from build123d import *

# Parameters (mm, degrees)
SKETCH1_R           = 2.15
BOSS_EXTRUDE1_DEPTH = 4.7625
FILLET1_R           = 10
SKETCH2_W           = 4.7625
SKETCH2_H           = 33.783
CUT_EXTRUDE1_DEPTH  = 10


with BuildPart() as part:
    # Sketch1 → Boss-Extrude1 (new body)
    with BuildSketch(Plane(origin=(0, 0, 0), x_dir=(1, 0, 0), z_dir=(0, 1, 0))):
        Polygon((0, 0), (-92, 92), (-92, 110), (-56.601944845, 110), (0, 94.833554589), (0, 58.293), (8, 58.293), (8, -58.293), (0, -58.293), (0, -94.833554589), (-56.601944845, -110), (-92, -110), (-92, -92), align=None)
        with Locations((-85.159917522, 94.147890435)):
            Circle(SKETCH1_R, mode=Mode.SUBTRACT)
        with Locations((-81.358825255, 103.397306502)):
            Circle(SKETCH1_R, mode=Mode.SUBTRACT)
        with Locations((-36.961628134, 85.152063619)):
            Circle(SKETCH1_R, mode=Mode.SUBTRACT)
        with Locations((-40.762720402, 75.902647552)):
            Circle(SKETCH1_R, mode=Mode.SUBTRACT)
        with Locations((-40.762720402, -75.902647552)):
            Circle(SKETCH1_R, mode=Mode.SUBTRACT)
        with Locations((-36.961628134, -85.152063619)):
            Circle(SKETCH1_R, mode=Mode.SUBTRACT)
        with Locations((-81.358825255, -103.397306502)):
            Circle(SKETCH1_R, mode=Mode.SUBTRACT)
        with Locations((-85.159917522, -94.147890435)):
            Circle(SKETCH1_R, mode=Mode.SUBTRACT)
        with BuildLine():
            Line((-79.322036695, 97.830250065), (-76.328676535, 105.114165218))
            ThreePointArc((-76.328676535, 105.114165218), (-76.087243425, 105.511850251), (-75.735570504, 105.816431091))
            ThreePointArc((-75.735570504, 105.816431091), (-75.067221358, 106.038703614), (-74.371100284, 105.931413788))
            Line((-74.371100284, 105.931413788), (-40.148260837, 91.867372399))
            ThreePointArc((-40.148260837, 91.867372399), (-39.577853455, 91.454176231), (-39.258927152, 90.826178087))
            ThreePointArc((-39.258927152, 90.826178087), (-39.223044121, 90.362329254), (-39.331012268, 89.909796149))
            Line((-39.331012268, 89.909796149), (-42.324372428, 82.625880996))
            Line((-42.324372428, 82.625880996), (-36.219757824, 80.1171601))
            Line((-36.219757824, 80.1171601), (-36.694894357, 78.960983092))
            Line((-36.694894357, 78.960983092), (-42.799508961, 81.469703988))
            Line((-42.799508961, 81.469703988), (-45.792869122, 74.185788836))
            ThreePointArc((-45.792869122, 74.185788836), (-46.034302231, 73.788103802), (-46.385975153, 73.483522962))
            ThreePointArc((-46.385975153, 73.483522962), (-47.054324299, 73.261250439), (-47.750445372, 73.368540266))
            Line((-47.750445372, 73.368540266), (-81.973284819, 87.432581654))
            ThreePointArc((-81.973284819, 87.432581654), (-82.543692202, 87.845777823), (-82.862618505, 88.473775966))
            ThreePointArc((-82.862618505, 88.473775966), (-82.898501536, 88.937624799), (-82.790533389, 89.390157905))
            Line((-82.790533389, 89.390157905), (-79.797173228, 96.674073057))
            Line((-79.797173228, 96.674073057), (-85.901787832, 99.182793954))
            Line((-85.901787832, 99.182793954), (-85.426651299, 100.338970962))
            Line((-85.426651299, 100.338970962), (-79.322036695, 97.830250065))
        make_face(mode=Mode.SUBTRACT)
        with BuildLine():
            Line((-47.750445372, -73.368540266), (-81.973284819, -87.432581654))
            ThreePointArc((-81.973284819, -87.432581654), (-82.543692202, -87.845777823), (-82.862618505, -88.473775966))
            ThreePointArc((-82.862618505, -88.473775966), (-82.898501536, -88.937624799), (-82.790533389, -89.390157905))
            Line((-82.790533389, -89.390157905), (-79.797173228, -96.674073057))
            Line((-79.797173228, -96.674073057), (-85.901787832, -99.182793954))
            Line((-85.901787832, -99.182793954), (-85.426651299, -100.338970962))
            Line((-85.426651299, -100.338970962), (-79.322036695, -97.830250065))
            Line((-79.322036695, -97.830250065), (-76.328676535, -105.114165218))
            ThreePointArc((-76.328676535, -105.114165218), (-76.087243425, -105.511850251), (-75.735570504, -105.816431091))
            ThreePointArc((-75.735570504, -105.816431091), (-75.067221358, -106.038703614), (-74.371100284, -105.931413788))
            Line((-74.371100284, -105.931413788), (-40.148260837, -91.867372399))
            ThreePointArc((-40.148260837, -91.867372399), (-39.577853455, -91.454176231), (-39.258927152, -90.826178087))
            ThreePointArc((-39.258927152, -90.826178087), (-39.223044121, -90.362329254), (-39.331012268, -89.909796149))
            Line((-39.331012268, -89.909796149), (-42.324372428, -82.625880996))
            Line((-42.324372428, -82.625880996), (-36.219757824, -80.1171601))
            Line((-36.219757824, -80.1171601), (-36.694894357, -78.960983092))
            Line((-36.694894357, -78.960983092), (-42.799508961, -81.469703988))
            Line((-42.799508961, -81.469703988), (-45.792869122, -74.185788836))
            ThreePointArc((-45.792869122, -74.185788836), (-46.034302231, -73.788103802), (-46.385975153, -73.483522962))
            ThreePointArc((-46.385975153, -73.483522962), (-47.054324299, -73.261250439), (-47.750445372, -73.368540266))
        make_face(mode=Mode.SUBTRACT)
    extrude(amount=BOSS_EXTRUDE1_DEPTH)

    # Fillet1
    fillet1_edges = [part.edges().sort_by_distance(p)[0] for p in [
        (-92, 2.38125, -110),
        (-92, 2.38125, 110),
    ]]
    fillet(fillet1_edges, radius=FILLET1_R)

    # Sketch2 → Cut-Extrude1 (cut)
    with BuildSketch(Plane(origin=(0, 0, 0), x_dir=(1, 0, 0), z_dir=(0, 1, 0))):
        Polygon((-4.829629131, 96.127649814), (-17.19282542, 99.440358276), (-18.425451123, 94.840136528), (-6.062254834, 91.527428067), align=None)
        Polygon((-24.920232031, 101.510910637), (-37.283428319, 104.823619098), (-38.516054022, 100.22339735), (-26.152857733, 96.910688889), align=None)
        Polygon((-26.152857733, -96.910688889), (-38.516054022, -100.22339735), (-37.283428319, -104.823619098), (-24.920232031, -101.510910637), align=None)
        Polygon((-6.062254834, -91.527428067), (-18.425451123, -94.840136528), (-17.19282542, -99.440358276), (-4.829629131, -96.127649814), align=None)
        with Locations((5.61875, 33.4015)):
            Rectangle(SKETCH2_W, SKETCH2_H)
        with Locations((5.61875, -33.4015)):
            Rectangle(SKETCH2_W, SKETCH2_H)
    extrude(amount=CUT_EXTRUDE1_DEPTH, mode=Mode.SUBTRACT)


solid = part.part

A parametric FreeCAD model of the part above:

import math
import FreeCAD as App
import Part
import Sketcher
from FreeCAD import Vector
Q = App.Units.Quantity


def edges_at(feature, points):
    """Names of the edges that pass closest to the given points."""
    edges = feature.Shape.Edges
    near = lambda p: min(range(len(edges)), key=lambda i: edges[i].distToShape(Part.Vertex(*p))[0])
    return sorted({f"Edge{near(p) + 1}" for p in points})

doc = App.newDocument("Part")
body = doc.addObject("PartDesign::Body", "Body")

# Sketch on XZ plane
sketch1 = doc.addObject("Sketcher::SketchObject", "Sketch")
body.addObject(sketch1)
sketch1.AttachmentSupport = (doc.XZ_Plane, [""])
sketch1.MapMode = "FlatFace"
sketch1.addGeometry(Part.LineSegment(Vector(-92, -92, 0), Vector(0, 0, 0)), False)
sketch1.addGeometry(Part.LineSegment(Vector(0, 0, 0), Vector(-92, 92, 0)), False)
sketch1.addGeometry(Part.LineSegment(Vector(-92, 92, 0), Vector(-92, 110, 0)), False)
sketch1.addGeometry(Part.LineSegment(Vector(-92, 110, 0), Vector(-56.601945, 110, 0)), False)
sketch1.addGeometry(Part.LineSegment(Vector(-56.601945, 110, 0), Vector(0, 94.833555, 0)), False)
sketch1.addGeometry(Part.LineSegment(Vector(0, 94.833555, 0), Vector(0, 58.293, 0)), False)
sketch1.addGeometry(Part.LineSegment(Vector(0, 58.293, 0), Vector(8, 58.293, 0)), False)
sketch1.addGeometry(Part.LineSegment(Vector(8, 58.293, 0), Vector(8, -58.293, 0)), False)
sketch1.addGeometry(Part.LineSegment(Vector(8, -58.293, 0), Vector(0, -58.293, 0)), False)
sketch1.addGeometry(Part.LineSegment(Vector(0, -58.293, 0), Vector(0, -94.833555, 0)), False)
sketch1.addGeometry(Part.LineSegment(Vector(0, -94.833555, 0), Vector(-56.601945, -110, 0)), False)
sketch1.addGeometry(Part.LineSegment(Vector(-56.601945, -110, 0), Vector(-92, -110, 0)), False)
sketch1.addGeometry(Part.LineSegment(Vector(-92, -110, 0), Vector(-92, -92, 0)), False)
sketch1.addGeometry(Part.Circle(Vector(-36.961628, 85.152064, 0), Vector(0, 0, 1), 2.15), False)
sketch1.addGeometry(Part.Circle(Vector(-40.76272, 75.902648, 0), Vector(0, 0, 1), 2.15), False)
sketch1.addGeometry(Part.ArcOfCircle(Part.Circle(Vector(-47.180282, 74.755953, 0), Vector(0, 0, 1), 1.5), math.radians(-112.340449), math.radians(-58.025783)), False)
sketch1.addGeometry(Part.ArcOfCircle(Part.Circle(Vector(-47.180282, 74.755953, 0), Vector(0, 0, 1), 1.5), math.radians(-58.025783), math.radians(-22.340448)), False)
sketch1.addGeometry(Part.LineSegment(Vector(-45.792869, 74.185789, 0), Vector(-42.799509, 81.469704, 0)), False)
sketch1.addGeometry(Part.LineSegment(Vector(-42.799509, 81.469704, 0), Vector(-36.694894, 78.960983, 0)), False)
sketch1.addGeometry(Part.LineSegment(Vector(-36.694894, 78.960983, 0), Vector(-36.219758, 80.11716, 0)), False)
sketch1.addGeometry(Part.LineSegment(Vector(-36.219758, 80.11716, 0), Vector(-42.324372, 82.625881, 0)), False)
sketch1.addGeometry(Part.LineSegment(Vector(-42.324372, 82.625881, 0), Vector(-39.331012, 89.909796, 0)), False)
sketch1.addGeometry(Part.ArcOfCircle(Part.Circle(Vector(-40.718425, 90.47996, 0), Vector(0, 0, 1), 1.5), math.radians(-22.340449), math.radians(13.344886)), False)
sketch1.addGeometry(Part.ArcOfCircle(Part.Circle(Vector(-40.718425, 90.47996, 0), Vector(0, 0, 1), 1.5), math.radians(13.344886), math.radians(67.659551)), False)
sketch1.addGeometry(Part.LineSegment(Vector(-40.148261, 91.867372, 0), Vector(-74.3711, 105.931414, 0)), False)
sketch1.addGeometry(Part.ArcOfCircle(Part.Circle(Vector(-74.941264, 104.544001, 0), Vector(0, 0, 1), 1.5), math.radians(67.659551), math.radians(121.974217)), False)
sketch1.addGeometry(Part.ArcOfCircle(Part.Circle(Vector(-74.941264, 104.544001, 0), Vector(0, 0, 1), 1.5), math.radians(121.974217), math.radians(157.659551)), False)
sketch1.addGeometry(Part.LineSegment(Vector(-76.328677, 105.114165, 0), Vector(-79.322037, 97.83025, 0)), False)
sketch1.addGeometry(Part.LineSegment(Vector(-79.322037, 97.83025, 0), Vector(-85.426651, 100.338971, 0)), False)
sketch1.addGeometry(Part.LineSegment(Vector(-85.426651, 100.338971, 0), Vector(-85.901788, 99.182794, 0)), False)
sketch1.addGeometry(Part.LineSegment(Vector(-85.901788, 99.182794, 0), Vector(-79.797173, 96.674073, 0)), False)
sketch1.addGeometry(Part.LineSegment(Vector(-79.797173, 96.674073, 0), Vector(-82.790533, 89.390158, 0)), False)
sketch1.addGeometry(Part.ArcOfCircle(Part.Circle(Vector(-81.403121, 88.819994, 0), Vector(0, 0, 1), 1.5), math.radians(157.659551), math.radians(193.344886)), False)
sketch1.addGeometry(Part.ArcOfCircle(Part.Circle(Vector(-81.403121, 88.819994, 0), Vector(0, 0, 1), 1.5), math.radians(-166.655114), math.radians(-112.340449)), False)
sketch1.addGeometry(Part.LineSegment(Vector(-81.973285, 87.432582, 0), Vector(-47.750445, 73.36854, 0)), False)
sketch1.addGeometry(Part.Circle(Vector(-81.358825, 103.397307, 0), Vector(0, 0, 1), 2.15), False)
sketch1.addGeometry(Part.Circle(Vector(-85.159918, 94.14789, 0), Vector(0, 0, 1), 2.15), False)
sketch1.addGeometry(Part.Circle(Vector(-40.76272, -75.902648, 0), Vector(0, 0, 1), 2.15), False)
sketch1.addGeometry(Part.Circle(Vector(-36.961628, -85.152064, 0), Vector(0, 0, 1), 2.15), False)
sketch1.addGeometry(Part.LineSegment(Vector(-79.322037, -97.83025, 0), Vector(-76.328677, -105.114165, 0)), False)
sketch1.addGeometry(Part.ArcOfCircle(Part.Circle(Vector(-74.941264, -104.544001, 0), Vector(0, 0, 1), 1.5), math.radians(-157.659551), math.radians(-121.974217)), False)
sketch1.addGeometry(Part.ArcOfCircle(Part.Circle(Vector(-74.941264, -104.544001, 0), Vector(0, 0, 1), 1.5), math.radians(-121.974217), math.radians(-67.659551)), False)
sketch1.addGeometry(Part.LineSegment(Vector(-74.3711, -105.931414, 0), Vector(-40.148261, -91.867372, 0)), False)
sketch1.addGeometry(Part.ArcOfCircle(Part.Circle(Vector(-40.718425, -90.47996, 0), Vector(0, 0, 1), 1.5), math.radians(-67.659551), math.radians(-13.344886)), False)
sketch1.addGeometry(Part.ArcOfCircle(Part.Circle(Vector(-40.718425, -90.47996, 0), Vector(0, 0, 1), 1.5), math.radians(-13.344886), math.radians(22.340449)), False)
sketch1.addGeometry(Part.LineSegment(Vector(-39.331012, -89.909796, 0), Vector(-42.324372, -82.625881, 0)), False)
sketch1.addGeometry(Part.LineSegment(Vector(-42.324372, -82.625881, 0), Vector(-36.219758, -80.11716, 0)), False)
sketch1.addGeometry(Part.LineSegment(Vector(-36.219758, -80.11716, 0), Vector(-36.694894, -78.960983, 0)), False)
sketch1.addGeometry(Part.LineSegment(Vector(-36.694894, -78.960983, 0), Vector(-42.799509, -81.469704, 0)), False)
sketch1.addGeometry(Part.LineSegment(Vector(-42.799509, -81.469704, 0), Vector(-45.792869, -74.185789, 0)), False)
sketch1.addGeometry(Part.ArcOfCircle(Part.Circle(Vector(-47.180282, -74.755953, 0), Vector(0, 0, 1), 1.5), math.radians(22.340448), math.radians(58.025783)), False)
sketch1.addGeometry(Part.ArcOfCircle(Part.Circle(Vector(-47.180282, -74.755953, 0), Vector(0, 0, 1), 1.5), math.radians(58.025783), math.radians(112.340449)), False)
sketch1.addGeometry(Part.LineSegment(Vector(-47.750445, -73.36854, 0), Vector(-81.973285, -87.432582, 0)), False)
sketch1.addGeometry(Part.ArcOfCircle(Part.Circle(Vector(-81.403121, -88.819994, 0), Vector(0, 0, 1), 1.5), math.radians(112.340449), math.radians(166.655114)), False)
sketch1.addGeometry(Part.ArcOfCircle(Part.Circle(Vector(-81.403121, -88.819994, 0), Vector(0, 0, 1), 1.5), math.radians(166.655114), math.radians(202.340449)), False)
sketch1.addGeometry(Part.LineSegment(Vector(-82.790533, -89.390158, 0), Vector(-79.797173, -96.674073, 0)), False)
sketch1.addGeometry(Part.LineSegment(Vector(-79.797173, -96.674073, 0), Vector(-85.901788, -99.182794, 0)), False)
sketch1.addGeometry(Part.LineSegment(Vector(-85.901788, -99.182794, 0), Vector(-85.426651, -100.338971, 0)), False)
sketch1.addGeometry(Part.LineSegment(Vector(-85.426651, -100.338971, 0), Vector(-79.322037, -97.83025, 0)), False)
sketch1.addGeometry(Part.Circle(Vector(-81.358825, -103.397307, 0), Vector(0, 0, 1), 2.15), False)
sketch1.addGeometry(Part.Circle(Vector(-85.159918, -94.14789, 0), Vector(0, 0, 1), 2.15), False)
sketch1.addConstraint(Sketcher.Constraint("Coincident", 0, 2, 1, 1))
sketch1.addConstraint(Sketcher.Constraint("Coincident", 1, 2, 2, 1))
sketch1.addConstraint(Sketcher.Constraint("Coincident", 2, 2, 3, 1))
sketch1.addConstraint(Sketcher.Constraint("Coincident", 3, 2, 4, 1))
sketch1.addConstraint(Sketcher.Constraint("Coincident", 4, 2, 5, 1))
sketch1.addConstraint(Sketcher.Constraint("Coincident", 5, 2, 6, 1))
sketch1.addConstraint(Sketcher.Constraint("Coincident", 6, 2, 7, 1))
sketch1.addConstraint(Sketcher.Constraint("Coincident", 7, 2, 8, 1))
sketch1.addConstraint(Sketcher.Constraint("Coincident", 8, 2, 9, 1))
sketch1.addConstraint(Sketcher.Constraint("Coincident", 9, 2, 10, 1))
sketch1.addConstraint(Sketcher.Constraint("Coincident", 10, 2, 11, 1))
sketch1.addConstraint(Sketcher.Constraint("Coincident", 11, 2, 12, 1))
sketch1.addConstraint(Sketcher.Constraint("Coincident", 12, 2, 0, 1))
sketch1.addConstraint(Sketcher.Constraint("Tangent", 15, 2, 16, 1))
sketch1.addConstraint(Sketcher.Constraint("Tangent", 16, 2, 17, 1))
sketch1.addConstraint(Sketcher.Constraint("Coincident", 17, 2, 18, 1))
sketch1.addConstraint(Sketcher.Constraint("Coincident", 18, 2, 19, 1))
sketch1.addConstraint(Sketcher.Constraint("Coincident", 19, 2, 20, 1))
sketch1.addConstraint(Sketcher.Constraint("Coincident", 20, 2, 21, 1))
sketch1.addConstraint(Sketcher.Constraint("Tangent", 21, 2, 22, 1))
sketch1.addConstraint(Sketcher.Constraint("Tangent", 22, 2, 23, 1))
sketch1.addConstraint(Sketcher.Constraint("Tangent", 23, 2, 24, 1))
sketch1.addConstraint(Sketcher.Constraint("Tangent", 24, 2, 25, 1))
sketch1.addConstraint(Sketcher.Constraint("Tangent", 25, 2, 26, 1))
sketch1.addConstraint(Sketcher.Constraint("Tangent", 26, 2, 27, 1))
sketch1.addConstraint(Sketcher.Constraint("Coincident", 27, 2, 28, 1))
sketch1.addConstraint(Sketcher.Constraint("Coincident", 28, 2, 29, 1))
sketch1.addConstraint(Sketcher.Constraint("Coincident", 29, 2, 30, 1))
sketch1.addConstraint(Sketcher.Constraint("Coincident", 30, 2, 31, 1))
sketch1.addConstraint(Sketcher.Constraint("Tangent", 31, 2, 32, 1))
sketch1.addConstraint(Sketcher.Constraint("Tangent", 32, 2, 33, 1))
sketch1.addConstraint(Sketcher.Constraint("Tangent", 33, 2, 34, 1))
sketch1.addConstraint(Sketcher.Constraint("Tangent", 34, 2, 15, 1))
sketch1.addConstraint(Sketcher.Constraint("Tangent", 39, 2, 40, 1))
sketch1.addConstraint(Sketcher.Constraint("Tangent", 40, 2, 41, 1))
sketch1.addConstraint(Sketcher.Constraint("Tangent", 41, 2, 42, 1))
sketch1.addConstraint(Sketcher.Constraint("Tangent", 42, 2, 43, 1))
sketch1.addConstraint(Sketcher.Constraint("Tangent", 43, 2, 44, 1))
sketch1.addConstraint(Sketcher.Constraint("Tangent", 44, 2, 45, 1))
sketch1.addConstraint(Sketcher.Constraint("Coincident", 45, 2, 46, 1))
sketch1.addConstraint(Sketcher.Constraint("Coincident", 46, 2, 47, 1))
sketch1.addConstraint(Sketcher.Constraint("Coincident", 47, 2, 48, 1))
sketch1.addConstraint(Sketcher.Constraint("Coincident", 48, 2, 49, 1))
sketch1.addConstraint(Sketcher.Constraint("Tangent", 49, 2, 50, 1))
sketch1.addConstraint(Sketcher.Constraint("Tangent", 50, 2, 51, 1))
sketch1.addConstraint(Sketcher.Constraint("Tangent", 51, 2, 52, 1))
sketch1.addConstraint(Sketcher.Constraint("Tangent", 52, 2, 53, 1))
sketch1.addConstraint(Sketcher.Constraint("Tangent", 53, 2, 54, 1))
sketch1.addConstraint(Sketcher.Constraint("Tangent", 54, 2, 55, 1))
sketch1.addConstraint(Sketcher.Constraint("Coincident", 55, 2, 56, 1))
sketch1.addConstraint(Sketcher.Constraint("Coincident", 56, 2, 57, 1))
sketch1.addConstraint(Sketcher.Constraint("Coincident", 57, 2, 58, 1))
sketch1.addConstraint(Sketcher.Constraint("Coincident", 58, 2, 39, 1))
sketch1.addConstraint(Sketcher.Constraint("Vertical", 2))
sketch1.addConstraint(Sketcher.Constraint("Horizontal", 3))
sketch1.addConstraint(Sketcher.Constraint("Vertical", 5))
sketch1.addConstraint(Sketcher.Constraint("Horizontal", 6))
sketch1.addConstraint(Sketcher.Constraint("Vertical", 7))
sketch1.addConstraint(Sketcher.Constraint("Horizontal", 8))
sketch1.addConstraint(Sketcher.Constraint("Vertical", 9))
sketch1.addConstraint(Sketcher.Constraint("Horizontal", 11))
sketch1.addConstraint(Sketcher.Constraint("Vertical", 12))
sketch1.addConstraint(Sketcher.Constraint("Coincident", 0, 2, -1, 1))
sketch1.addConstraint(Sketcher.Constraint("Equal", 13, 14))
sketch1.addConstraint(Sketcher.Constraint("Equal", 15, 16))
sketch1.addConstraint(Sketcher.Constraint("Equal", 16, 22))
sketch1.addConstraint(Sketcher.Constraint("Equal", 22, 23))
sketch1.addConstraint(Sketcher.Constraint("Equal", 23, 25))
sketch1.addConstraint(Sketcher.Constraint("Equal", 25, 26))
sketch1.addConstraint(Sketcher.Constraint("Equal", 26, 32))
sketch1.addConstraint(Sketcher.Constraint("Equal", 32, 33))
sketch1.addConstraint(Sketcher.Constraint("Equal", 14, 35))
sketch1.addConstraint(Sketcher.Constraint("Equal", 35, 36))
sketch1.addConstraint(Sketcher.Constraint("Equal", 36, 37))
sketch1.addConstraint(Sketcher.Constraint("Equal", 37, 38))
sketch1.addConstraint(Sketcher.Constraint("Equal", 33, 40))
sketch1.addConstraint(Sketcher.Constraint("Equal", 40, 41))
sketch1.addConstraint(Sketcher.Constraint("Equal", 41, 43))
sketch1.addConstraint(Sketcher.Constraint("Equal", 43, 44))
sketch1.addConstraint(Sketcher.Constraint("Equal", 44, 50))
sketch1.addConstraint(Sketcher.Constraint("Equal", 50, 51))
sketch1.addConstraint(Sketcher.Constraint("Equal", 51, 53))
sketch1.addConstraint(Sketcher.Constraint("Equal", 53, 54))
sketch1.addConstraint(Sketcher.Constraint("Equal", 38, 59))
sketch1.addConstraint(Sketcher.Constraint("Equal", 59, 60))
sketch1.addConstraint(Sketcher.Constraint("Symmetric", 5, 2, 8, 2, -1, 1))
sketch1.addConstraint(Sketcher.Constraint("Symmetric", 14, 3, 37, 3, -1))
sketch1.addConstraint(Sketcher.Constraint("Symmetric", 13, 3, 38, 3, -1))
sketch1.addConstraint(Sketcher.Constraint("Symmetric", 25, 3, 40, 3, -1))
sketch1.addConstraint(Sketcher.Constraint("Symmetric", 22, 3, 43, 3, -1))
sketch1.addConstraint(Sketcher.Constraint("Symmetric", 15, 3, 50, 3, -1))
sketch1.addConstraint(Sketcher.Constraint("Symmetric", 32, 3, 53, 3, -1))
sketch1.addConstraint(Sketcher.Constraint("Symmetric", 35, 3, 59, 3, -1))
sketch1.addConstraint(Sketcher.Constraint("Symmetric", 36, 3, 60, 3, -1))
sketch1.addConstraint(Sketcher.Constraint("Symmetric", 4, 2, 9, 2, -1))
sketch1.addConstraint(Sketcher.Constraint("Symmetric", 3, 2, 10, 2, -1))
sketch1.addConstraint(Sketcher.Constraint("Symmetric", 1, 2, 12, 2, -1))
sketch1.addConstraint(Sketcher.Constraint("Symmetric", 20, 2, 45, 2, -1))
sketch1.addConstraint(Sketcher.Constraint("Symmetric", 19, 2, 46, 2, -1))
sketch1.addConstraint(Sketcher.Constraint("Symmetric", 18, 2, 47, 2, -1))
sketch1.addConstraint(Sketcher.Constraint("Symmetric", 17, 2, 48, 2, -1))
sketch1.addConstraint(Sketcher.Constraint("Symmetric", 30, 2, 55, 2, -1))
sketch1.addConstraint(Sketcher.Constraint("Symmetric", 29, 2, 56, 2, -1))
sketch1.addConstraint(Sketcher.Constraint("Symmetric", 28, 2, 57, 2, -1))
sketch1.addConstraint(Sketcher.Constraint("Symmetric", 27, 2, 58, 2, -1))
sketch1.addConstraint(Sketcher.Constraint("Perpendicular", 0, 1))
sketch1.addConstraint(Sketcher.Constraint("Perpendicular", 17, 18))
sketch1.addConstraint(Sketcher.Constraint("Perpendicular", 18, 19))
sketch1.addConstraint(Sketcher.Constraint("Perpendicular", 19, 20))
sketch1.addConstraint(Sketcher.Constraint("Perpendicular", 20, 21))
sketch1.addConstraint(Sketcher.Constraint("Perpendicular", 21, 24))
sketch1.addConstraint(Sketcher.Constraint("Perpendicular", 24, 27))
sketch1.addConstraint(Sketcher.Constraint("Perpendicular", 27, 28))
sketch1.addConstraint(Sketcher.Constraint("Perpendicular", 28, 29))
sketch1.addConstraint(Sketcher.Constraint("Perpendicular", 29, 30))
sketch1.addConstraint(Sketcher.Constraint("Perpendicular", 30, 31))
sketch1.addConstraint(Sketcher.Constraint("Perpendicular", 31, 34))
sketch1.addConstraint(Sketcher.Constraint("Vertical", 25, 2, 40, 2))
sketch1.addConstraint(Sketcher.Constraint("Vertical", 22, 2, 43, 2))
sketch1.addConstraint(Sketcher.Constraint("Vertical", 15, 2, 50, 2))
sketch1.addConstraint(Sketcher.Constraint("Vertical", 32, 2, 53, 2))
sketch1.addConstraint(Sketcher.Constraint("Equal", 18, 20))
sketch1.addConstraint(Sketcher.Constraint("Equal", 17, 21))
sketch1.addConstraint(Sketcher.Constraint("Equal", 21, 27))
sketch1.addConstraint(Sketcher.Constraint("Equal", 20, 28))
sketch1.addConstraint(Sketcher.Constraint("Equal", 19, 29))
sketch1.addConstraint(Sketcher.Constraint("Equal", 28, 30))
sketch1.addConstraint(Sketcher.Constraint("Diameter", 13, 4.3))
sketch1.addConstraint(Sketcher.Constraint("Radius", 15, 1.5))
sketch1.addConstraint(Sketcher.Constraint("DistanceX", 6, 1, 6, 2, 8.0))
sketch1.addConstraint(Sketcher.Constraint("DistanceY", 2, 1, 2, 2, 18.0))
sketch1.addConstraint(Sketcher.Constraint("Angle", 4, Q("-15 deg")))
sketch1.addConstraint(Sketcher.Constraint("Distance", 24, 37.0))
sketch1.addConstraint(Sketcher.Constraint("DistanceX", 1, 2, -1, 1, 92.0))
sketch1.addConstraint(Sketcher.Constraint("Distance", 18, 6.6))
sketch1.addConstraint(Sketcher.Constraint("Distance", 19, 1.25))
sketch1.addConstraint(Sketcher.Constraint("DistanceY", 7, 2, 7, 1, 116.586))
sketch1.addConstraint(Sketcher.Constraint("Distance", 17, 7.875))
sketch1.addConstraint(Sketcher.Constraint("DistanceY", -1, 1, 25, 3, 104.544001))
sketch1.addConstraint(Sketcher.Constraint("DistanceX", 24, 2, -1, 1, 74.3711))
sketch1.addConstraint(Sketcher.Constraint("DistanceX", 3, 1, 3, 2, 35.398055))
sketch1.addConstraint(Sketcher.Constraint("DistanceX", 13, 3, -1, 1, 36.961628))
sketch1.addConstraint(Sketcher.Constraint("DistanceX", 14, 3, -1, 1, 40.76272))
sketch1.addConstraint(Sketcher.Constraint("DistanceX", 15, 3, -1, 1, 47.180282))
sketch1.addConstraint(Sketcher.Constraint("DistanceY", -1, 1, 36, 3, 94.14789))
sketch1.addConstraint(Sketcher.Constraint("DistanceY", -1, 1, 22, 2, 90.826178))
sketch1.addConstraint(Sketcher.Constraint("DistanceX", 25, 2, -1, 1, 75.735571))
sketch1.addConstraint(Sketcher.Constraint("DistanceX", 32, 2, -1, 1, 82.862619))
sketch1.addConstraint(Sketcher.Constraint("DistanceY", -1, 1, 13, 3, 85.152064))
sketch1.addConstraint(Sketcher.Constraint("DistanceY", -1, 1, 14, 3, 75.902648))
sketch1.addConstraint(Sketcher.Constraint("DistanceX", 35, 3, -1, 1, 81.358825))
sketch1.addConstraint(Sketcher.Constraint("DistanceY", -1, 1, 35, 3, 103.397307))
sketch1.addConstraint(Sketcher.Constraint("DistanceX", 36, 3, -1, 1, 85.159918))
sketch1.addConstraint(Sketcher.Constraint("DistanceX", 15, 2, -1, 1, 46.385975))
pad1 = doc.addObject("PartDesign::Pad", "Pad")
body.addObject(pad1)
pad1.Profile = sketch1
pad1.Length = 4.7625
pad1.Reversed = True
doc.recompute()

fillet = doc.addObject("PartDesign::Fillet", "Fillet")
body.addObject(fillet)
fillet.Base = (pad1, edges_at(pad1, [(-92, 2.381, -110), (-92, 2.381, 110)]))
fillet.Radius = 10

# Sketch on XZ plane
sketch2 = doc.addObject("Sketcher::SketchObject", "Sketch001")
body.addObject(sketch2)
sketch2.AttachmentSupport = (doc.XZ_Plane, [""])
sketch2.MapMode = "FlatFace"
sketch2.addGeometry(Part.LineSegment(Vector(-4.829629, -96.12765, 0), Vector(-17.192825, -99.440358, 0)), False)
sketch2.addGeometry(Part.LineSegment(Vector(-17.192825, -99.440358, 0), Vector(-18.425451, -94.840137, 0)), False)
sketch2.addGeometry(Part.LineSegment(Vector(-18.425451, -94.840137, 0), Vector(-6.062255, -91.527428, 0)), False)
sketch2.addGeometry(Part.LineSegment(Vector(-6.062255, -91.527428, 0), Vector(-4.829629, -96.12765, 0)), False)
sketch2.addGeometry(Part.LineSegment(Vector(-24.920232, -101.510911, 0), Vector(-37.283428, -104.823619, 0)), False)
sketch2.addGeometry(Part.LineSegment(Vector(-37.283428, -104.823619, 0), Vector(-38.516054, -100.223397, 0)), False)
sketch2.addGeometry(Part.LineSegment(Vector(-38.516054, -100.223397, 0), Vector(-26.152858, -96.910689, 0)), False)
sketch2.addGeometry(Part.LineSegment(Vector(-26.152858, -96.910689, 0), Vector(-24.920232, -101.510911, 0)), False)
sketch2.addGeometry(Part.LineSegment(Vector(-26.152858, 96.910689, 0), Vector(-38.516054, 100.223397, 0)), False)
sketch2.addGeometry(Part.LineSegment(Vector(-38.516054, 100.223397, 0), Vector(-37.283428, 104.823619, 0)), False)
sketch2.addGeometry(Part.LineSegment(Vector(-37.283428, 104.823619, 0), Vector(-24.920232, 101.510911, 0)), False)
sketch2.addGeometry(Part.LineSegment(Vector(-24.920232, 101.510911, 0), Vector(-26.152858, 96.910689, 0)), False)
sketch2.addGeometry(Part.LineSegment(Vector(-6.062255, 91.527428, 0), Vector(-18.425451, 94.840137, 0)), False)
sketch2.addGeometry(Part.LineSegment(Vector(-18.425451, 94.840137, 0), Vector(-17.192825, 99.440358, 0)), False)
sketch2.addGeometry(Part.LineSegment(Vector(-17.192825, 99.440358, 0), Vector(-4.829629, 96.12765, 0)), False)
sketch2.addGeometry(Part.LineSegment(Vector(-4.829629, 96.12765, 0), Vector(-6.062255, 91.527428, 0)), False)
sketch2.addGeometry(Part.LineSegment(Vector(3.2375, -50.293, 0), Vector(3.2375, -16.51, 0)), False)
sketch2.addGeometry(Part.LineSegment(Vector(3.2375, -16.51, 0), Vector(8, -16.51, 0)), False)
sketch2.addGeometry(Part.LineSegment(Vector(8, -16.51, 0), Vector(8, -50.293, 0)), False)
sketch2.addGeometry(Part.LineSegment(Vector(8, -50.293, 0), Vector(3.2375, -50.293, 0)), False)
sketch2.addGeometry(Part.LineSegment(Vector(3.2375, 16.51, 0), Vector(3.2375, 50.293, 0)), False)
sketch2.addGeometry(Part.LineSegment(Vector(3.2375, 50.293, 0), Vector(8, 50.293, 0)), False)
sketch2.addGeometry(Part.LineSegment(Vector(8, 50.293, 0), Vector(8, 16.51, 0)), False)
sketch2.addGeometry(Part.LineSegment(Vector(8, 16.51, 0), Vector(3.2375, 16.51, 0)), False)
sketch2.addConstraint(Sketcher.Constraint("Coincident", 0, 2, 1, 1))
sketch2.addConstraint(Sketcher.Constraint("Coincident", 1, 2, 2, 1))
sketch2.addConstraint(Sketcher.Constraint("Coincident", 2, 2, 3, 1))
sketch2.addConstraint(Sketcher.Constraint("Coincident", 3, 2, 0, 1))
sketch2.addConstraint(Sketcher.Constraint("Coincident", 4, 2, 5, 1))
sketch2.addConstraint(Sketcher.Constraint("Coincident", 5, 2, 6, 1))
sketch2.addConstraint(Sketcher.Constraint("Coincident", 6, 2, 7, 1))
sketch2.addConstraint(Sketcher.Constraint("Coincident", 7, 2, 4, 1))
sketch2.addConstraint(Sketcher.Constraint("Coincident", 8, 2, 9, 1))
sketch2.addConstraint(Sketcher.Constraint("Coincident", 9, 2, 10, 1))
sketch2.addConstraint(Sketcher.Constraint("Coincident", 10, 2, 11, 1))
sketch2.addConstraint(Sketcher.Constraint("Coincident", 11, 2, 8, 1))
sketch2.addConstraint(Sketcher.Constraint("Coincident", 12, 2, 13, 1))
sketch2.addConstraint(Sketcher.Constraint("Coincident", 13, 2, 14, 1))
sketch2.addConstraint(Sketcher.Constraint("Coincident", 14, 2, 15, 1))
sketch2.addConstraint(Sketcher.Constraint("Coincident", 15, 2, 12, 1))
sketch2.addConstraint(Sketcher.Constraint("Coincident", 16, 2, 17, 1))
sketch2.addConstraint(Sketcher.Constraint("Coincident", 17, 2, 18, 1))
sketch2.addConstraint(Sketcher.Constraint("Coincident", 18, 2, 19, 1))
sketch2.addConstraint(Sketcher.Constraint("Coincident", 19, 2, 16, 1))
sketch2.addConstraint(Sketcher.Constraint("Coincident", 20, 2, 21, 1))
sketch2.addConstraint(Sketcher.Constraint("Coincident", 21, 2, 22, 1))
sketch2.addConstraint(Sketcher.Constraint("Coincident", 22, 2, 23, 1))
sketch2.addConstraint(Sketcher.Constraint("Coincident", 23, 2, 20, 1))
sketch2.addConstraint(Sketcher.Constraint("Vertical", 16))
sketch2.addConstraint(Sketcher.Constraint("Horizontal", 17))
sketch2.addConstraint(Sketcher.Constraint("Vertical", 18))
sketch2.addConstraint(Sketcher.Constraint("Horizontal", 19))
sketch2.addConstraint(Sketcher.Constraint("Vertical", 20))
sketch2.addConstraint(Sketcher.Constraint("Horizontal", 21))
sketch2.addConstraint(Sketcher.Constraint("Vertical", 22))
sketch2.addConstraint(Sketcher.Constraint("Horizontal", 23))
sketch2.addConstraint(Sketcher.Constraint("Symmetric", 5, 2, 8, 2, -1))
sketch2.addConstraint(Sketcher.Constraint("Symmetric", 4, 2, 9, 2, -1))
sketch2.addConstraint(Sketcher.Constraint("Symmetric", 7, 2, 10, 2, -1))
sketch2.addConstraint(Sketcher.Constraint("Symmetric", 6, 2, 11, 2, -1))
sketch2.addConstraint(Sketcher.Constraint("Symmetric", 1, 2, 12, 2, -1))
sketch2.addConstraint(Sketcher.Constraint("Symmetric", 0, 2, 13, 2, -1))
sketch2.addConstraint(Sketcher.Constraint("Symmetric", 3, 2, 14, 2, -1))
sketch2.addConstraint(Sketcher.Constraint("Symmetric", 2, 2, 15, 2, -1))
sketch2.addConstraint(Sketcher.Constraint("Symmetric", 19, 2, 20, 2, -1))
sketch2.addConstraint(Sketcher.Constraint("Symmetric", 17, 2, 22, 2, -1))
sketch2.addConstraint(Sketcher.Constraint("Perpendicular", 0, 1))
sketch2.addConstraint(Sketcher.Constraint("Perpendicular", 1, 2))
sketch2.addConstraint(Sketcher.Constraint("Perpendicular", 2, 3))
sketch2.addConstraint(Sketcher.Constraint("Perpendicular", 3, 4))
sketch2.addConstraint(Sketcher.Constraint("Perpendicular", 4, 5))
sketch2.addConstraint(Sketcher.Constraint("Perpendicular", 5, 6))
sketch2.addConstraint(Sketcher.Constraint("Perpendicular", 6, 7))
sketch2.addConstraint(Sketcher.Constraint("Equal", 2, 4))
sketch2.addConstraint(Sketcher.Constraint("Equal", 3, 5))
sketch2.addConstraint(Sketcher.Constraint("Angle", 0, Q("-165 deg")))
sketch2.addConstraint(Sketcher.Constraint("DistanceX", -1, 1, 17, 2, 8.0))
sketch2.addConstraint(Sketcher.Constraint("DistanceY", 16, 1, 16, 2, 33.783))
sketch2.addConstraint(Sketcher.Constraint("DistanceY", 16, 2, -1, 1, 16.51))
sketch2.addConstraint(Sketcher.Constraint("DistanceX", 17, 1, 17, 2, 4.7625))
sketch2.addConstraint(Sketcher.Constraint("Distance", 1, 4.7625))
sketch2.addConstraint(Sketcher.Constraint("DistanceX", 4, 2, 3, 2, 32.453799))
sketch2.addConstraint(Sketcher.Constraint("DistanceY", 6, 2, 10, 2, 198.4216))
sketch2.addConstraint(Sketcher.Constraint("DistanceY", 0, 2, -1, 1, 99.440358))
sketch2.addConstraint(Sketcher.Constraint("DistanceX", 1, 2, -1, 1, 18.425451))
sketch2.addConstraint(Sketcher.Constraint("DistanceY", 2, 2, -1, 1, 91.527428))
pocket1 = doc.addObject("PartDesign::Pocket", "Pocket")
body.addObject(pocket1)
pocket1.Profile = sketch2
pocket1.Length = 10

doc.recompute()
